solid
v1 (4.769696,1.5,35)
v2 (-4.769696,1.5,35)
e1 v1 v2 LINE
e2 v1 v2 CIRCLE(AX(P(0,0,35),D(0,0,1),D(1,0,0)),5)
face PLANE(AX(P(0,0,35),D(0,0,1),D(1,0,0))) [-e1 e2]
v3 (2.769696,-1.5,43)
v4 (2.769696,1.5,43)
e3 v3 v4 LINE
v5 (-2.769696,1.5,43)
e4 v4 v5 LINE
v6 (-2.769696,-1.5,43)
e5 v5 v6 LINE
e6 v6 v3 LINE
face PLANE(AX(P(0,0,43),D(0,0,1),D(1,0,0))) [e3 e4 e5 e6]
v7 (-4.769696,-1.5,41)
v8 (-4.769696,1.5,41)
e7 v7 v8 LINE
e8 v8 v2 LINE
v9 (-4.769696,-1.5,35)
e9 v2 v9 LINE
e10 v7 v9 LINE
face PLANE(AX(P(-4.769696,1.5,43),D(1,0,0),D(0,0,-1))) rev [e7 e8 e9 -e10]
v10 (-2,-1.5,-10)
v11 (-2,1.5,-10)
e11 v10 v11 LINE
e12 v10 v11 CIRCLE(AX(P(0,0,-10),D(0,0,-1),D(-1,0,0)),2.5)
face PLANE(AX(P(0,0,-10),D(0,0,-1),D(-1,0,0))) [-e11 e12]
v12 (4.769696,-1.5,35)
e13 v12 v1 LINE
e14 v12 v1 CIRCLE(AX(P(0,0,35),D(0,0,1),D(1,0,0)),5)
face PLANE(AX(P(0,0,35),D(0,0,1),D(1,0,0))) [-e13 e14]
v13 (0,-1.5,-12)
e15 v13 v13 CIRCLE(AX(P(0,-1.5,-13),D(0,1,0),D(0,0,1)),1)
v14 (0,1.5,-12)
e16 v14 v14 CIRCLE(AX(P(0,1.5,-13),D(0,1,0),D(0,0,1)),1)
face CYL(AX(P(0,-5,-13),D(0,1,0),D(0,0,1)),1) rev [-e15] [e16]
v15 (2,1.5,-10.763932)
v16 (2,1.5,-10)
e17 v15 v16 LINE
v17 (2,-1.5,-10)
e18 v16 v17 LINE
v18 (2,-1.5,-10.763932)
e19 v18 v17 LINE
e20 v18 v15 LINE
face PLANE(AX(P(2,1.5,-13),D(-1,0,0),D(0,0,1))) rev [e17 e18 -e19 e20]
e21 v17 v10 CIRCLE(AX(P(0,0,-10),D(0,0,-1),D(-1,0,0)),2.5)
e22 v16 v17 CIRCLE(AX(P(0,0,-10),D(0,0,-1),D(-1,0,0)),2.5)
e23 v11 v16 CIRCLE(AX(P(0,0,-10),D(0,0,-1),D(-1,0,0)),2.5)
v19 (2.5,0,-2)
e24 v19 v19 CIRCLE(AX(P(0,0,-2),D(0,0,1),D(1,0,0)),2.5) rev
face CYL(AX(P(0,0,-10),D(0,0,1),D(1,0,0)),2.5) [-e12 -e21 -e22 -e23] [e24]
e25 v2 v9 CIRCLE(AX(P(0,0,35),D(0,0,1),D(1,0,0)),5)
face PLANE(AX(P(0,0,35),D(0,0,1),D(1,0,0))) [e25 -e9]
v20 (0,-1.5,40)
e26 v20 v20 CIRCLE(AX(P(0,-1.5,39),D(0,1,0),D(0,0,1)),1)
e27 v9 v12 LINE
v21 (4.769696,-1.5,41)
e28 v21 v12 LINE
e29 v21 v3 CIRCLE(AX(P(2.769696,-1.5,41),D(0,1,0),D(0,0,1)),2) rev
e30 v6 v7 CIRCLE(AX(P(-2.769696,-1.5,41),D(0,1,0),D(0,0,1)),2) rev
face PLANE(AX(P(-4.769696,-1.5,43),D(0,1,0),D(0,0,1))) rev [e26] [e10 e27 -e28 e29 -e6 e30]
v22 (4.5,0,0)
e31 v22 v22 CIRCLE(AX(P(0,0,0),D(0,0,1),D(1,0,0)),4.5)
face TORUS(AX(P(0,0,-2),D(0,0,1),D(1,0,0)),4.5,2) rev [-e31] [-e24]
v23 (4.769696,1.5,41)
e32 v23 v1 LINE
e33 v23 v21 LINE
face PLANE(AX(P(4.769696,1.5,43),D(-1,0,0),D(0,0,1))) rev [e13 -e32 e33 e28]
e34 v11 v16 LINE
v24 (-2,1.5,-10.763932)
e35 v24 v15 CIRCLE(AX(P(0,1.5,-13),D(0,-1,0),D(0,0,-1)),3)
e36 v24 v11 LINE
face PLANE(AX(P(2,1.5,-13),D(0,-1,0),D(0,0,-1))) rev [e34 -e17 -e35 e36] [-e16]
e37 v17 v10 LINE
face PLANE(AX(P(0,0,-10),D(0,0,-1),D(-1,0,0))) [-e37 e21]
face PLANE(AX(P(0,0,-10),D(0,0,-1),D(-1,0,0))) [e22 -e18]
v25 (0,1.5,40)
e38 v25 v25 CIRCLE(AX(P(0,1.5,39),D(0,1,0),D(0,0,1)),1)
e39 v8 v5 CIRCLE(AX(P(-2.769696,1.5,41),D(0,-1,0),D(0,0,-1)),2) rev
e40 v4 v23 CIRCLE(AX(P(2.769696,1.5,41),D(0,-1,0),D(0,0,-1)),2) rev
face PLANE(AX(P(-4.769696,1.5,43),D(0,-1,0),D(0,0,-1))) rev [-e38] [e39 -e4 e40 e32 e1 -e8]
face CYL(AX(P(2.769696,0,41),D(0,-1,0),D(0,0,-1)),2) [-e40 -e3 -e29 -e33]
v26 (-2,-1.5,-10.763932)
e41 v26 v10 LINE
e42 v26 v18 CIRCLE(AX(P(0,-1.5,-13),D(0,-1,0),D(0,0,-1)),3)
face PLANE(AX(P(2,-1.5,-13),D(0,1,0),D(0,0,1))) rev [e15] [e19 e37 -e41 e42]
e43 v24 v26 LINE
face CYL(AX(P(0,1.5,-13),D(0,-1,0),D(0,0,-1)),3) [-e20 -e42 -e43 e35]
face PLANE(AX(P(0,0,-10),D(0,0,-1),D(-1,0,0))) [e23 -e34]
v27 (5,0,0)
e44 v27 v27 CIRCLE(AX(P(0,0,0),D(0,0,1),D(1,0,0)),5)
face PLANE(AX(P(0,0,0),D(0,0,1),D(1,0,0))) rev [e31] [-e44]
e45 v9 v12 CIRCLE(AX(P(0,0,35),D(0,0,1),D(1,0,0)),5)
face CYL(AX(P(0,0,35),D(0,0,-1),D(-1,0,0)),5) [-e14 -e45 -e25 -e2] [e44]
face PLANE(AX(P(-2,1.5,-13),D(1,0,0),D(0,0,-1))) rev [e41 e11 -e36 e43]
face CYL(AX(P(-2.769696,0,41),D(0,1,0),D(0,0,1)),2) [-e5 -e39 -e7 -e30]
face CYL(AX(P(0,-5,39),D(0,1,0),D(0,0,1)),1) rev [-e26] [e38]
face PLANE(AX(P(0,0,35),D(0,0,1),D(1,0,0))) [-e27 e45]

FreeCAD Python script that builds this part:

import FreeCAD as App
import Part
import Sketcher


def edges_at(feature, points):
    """Names of the edges that pass closest to the given points."""
    edges = feature.Shape.Edges
    near = lambda p: min(range(len(edges)), key=lambda i: edges[i].distToShape(Part.Vertex(*p))[0])
    return sorted({f"Edge{near(p) + 1}" for p in points})

doc = App.newDocument("Part")
params = doc.addObject("Spreadsheet::Sheet", "Params")
for row, (alias, value) in enumerate([
    ("sketch1_diameter", "10 mm"),
    ("pad1_length", "35 mm"),
    ("sketch2_height", "3 mm"),
    ("pad2_length", "8 mm"),
    ("sketch3_diameter", "5 mm"),
    ("pad3_length", "10 mm"),
    ("sketch4_width", "4 mm"),
    ("sketch4_height", "3 mm"),
    ("pad4_length", "3 mm"),
    ("sketch5_diameter", "6 mm"),
    ("pad5_length", "3 mm"),
    ("fillet_radius", "2 mm"),
    ("fillet2_radius", "2 mm"),
    ("sketch6_diameter", "2 mm"),
    ("sketch7_diameter", "2 mm"),
], start=1):
    params.set(f"A{row}", alias)
    params.set(f"B{row}", "=" + value)
    params.setAlias(f"B{row}", alias)

body = doc.addObject("PartDesign::Body", "Body")

sketch1 = body.newObject("Sketcher::SketchObject", "Sketch")
sketch1.AttachmentSupport = (doc.getObject("XY_Plane"), [""])
sketch1.MapMode = "FlatFace"
sketch1.addGeometry(Part.Circle(App.Vector(0, 0, 0), App.Vector(0, 0, 1), 5), False)
sketch1.addConstraint(Sketcher.Constraint("Coincident", 0, 3, -1, 1))
sketch1.addConstraint(Sketcher.Constraint("Diameter", 0, 10.0))
sketch1.setExpression("Constraints[1]", "Params.sketch1_diameter")
pad1 = body.newObject("PartDesign::Pad", "Pad")
pad1.Profile = sketch1
pad1.setExpression("Length", "Params.pad1_length")

sketch2 = body.newObject("Sketcher::SketchObject", "Sketch001")
sketch2.AttachmentSupport = (doc.getObject("XY_Plane"), [""])
sketch2.MapMode = "FlatFace"
sketch2.AttachmentOffset = App.Placement(App.Vector(0, 0, 35), App.Rotation())
sketch2.addGeometry(Part.LineSegment(App.Vector(-4.8, 1.5, 0), App.Vector(-4.8, -1.5, 0)), False)
sketch2.addGeometry(Part.LineSegment(App.Vector(-4.8, -1.5, 0), App.Vector(4.8, -1.5, 0)), False)
sketch2.addGeometry(Part.LineSegment(App.Vector(4.8, -1.5, 0), App.Vector(4.8, 1.5, 0)), False)
sketch2.addGeometry(Part.LineSegment(App.Vector(4.8, 1.5, 0), App.Vector(-4.8, 1.5, 0)), False)
sketch2.addConstraint(Sketcher.Constraint("Coincident", 0, 2, 1, 1))
sketch2.addConstraint(Sketcher.Constraint("Coincident", 1, 2, 2, 1))
sketch2.addConstraint(Sketcher.Constraint("Coincident", 2, 2, 3, 1))
sketch2.addConstraint(Sketcher.Constraint("Coincident", 3, 2, 0, 1))
sketch2.addConstraint(Sketcher.Constraint("Vertical", 0))
sketch2.addConstraint(Sketcher.Constraint("Horizontal", 1))
sketch2.addConstraint(Sketcher.Constraint("Vertical", 2))
sketch2.addConstraint(Sketcher.Constraint("Horizontal", 3))
sketch2.addConstraint(Sketcher.Constraint("Symmetric", 0, 2, 2, 2, -1, 1))
sketch2.addConstraint(Sketcher.Constraint("DistanceY", 0, 2, 0, 1, 3.0))
sketch2.addConstraint(Sketcher.Constraint("DistanceX", 1, 1, 1, 2, 9.539392))
sketch2.setExpression("Constraints[9]", "Params.sketch2_height")
pad2 = body.newObject("PartDesign::Pad", "Pad001")
pad2.Profile = sketch2
pad2.setExpression("Length", "Params.pad2_length")

sketch3 = body.newObject("Sketcher::SketchObject", "Sketch002")
sketch3.AttachmentSupport = (doc.getObject("XY_Plane"), [""])
sketch3.MapMode = "FlatFace"
sketch3.addGeometry(Part.Circle(App.Vector(0, 0, 0), App.Vector(0, 0, 1), 2.5), False)
sketch3.addConstraint(Sketcher.Constraint("Coincident", 0, 3, -1, 1))
sketch3.addConstraint(Sketcher.Constraint("Diameter", 0, 5.0))
sketch3.setExpression("Constraints[1]", "Params.sketch3_diameter")
pad3 = body.newObject("PartDesign::Pad", "Pad002")
pad3.Profile = sketch3
pad3.setExpression("Length", "Params.pad3_length")
pad3.Reversed = True

sketch4 = body.newObject("Sketcher::SketchObject", "Sketch003")
sketch4.AttachmentSupport = (doc.getObject("XY_Plane"), [""])
sketch4.MapMode = "FlatFace"
sketch4.AttachmentOffset = App.Placement(App.Vector(0, 0, -10), App.Rotation())
sketch4.addGeometry(Part.LineSegment(App.Vector(2, 1.5, 0), App.Vector(2, -1.5, 0)), False)
sketch4.addGeometry(Part.LineSegment(App.Vector(2, -1.5, 0), App.Vector(-2, -1.5, 0)), False)
sketch4.addGeometry(Part.LineSegment(App.Vector(-2, -1.5, 0), App.Vector(-2, 1.5, 0)), False)
sketch4.addGeometry(Part.LineSegment(App.Vector(-2, 1.5, 0), App.Vector(2, 1.5, 0)), False)
sketch4.addConstraint(Sketcher.Constraint("Coincident", 0, 2, 1, 1))
sketch4.addConstraint(Sketcher.Constraint("Coincident", 1, 2, 2, 1))
sketch4.addConstraint(Sketcher.Constraint("Coincident", 2, 2, 3, 1))
sketch4.addConstraint(Sketcher.Constraint("Coincident", 3, 2, 0, 1))
sketch4.addConstraint(Sketcher.Constraint("Vertical", 0))
sketch4.addConstraint(Sketcher.Constraint("Horizontal", 1))
sketch4.addConstraint(Sketcher.Constraint("Vertical", 2))
sketch4.addConstraint(Sketcher.Constraint("Horizontal", 3))
sketch4.addConstraint(Sketcher.Constraint("Symmetric", 0, 2, 2, 2, -1, 1))
sketch4.addConstraint(Sketcher.Constraint("DistanceX", 1, 2, 1, 1, 4.0))
sketch4.addConstraint(Sketcher.Constraint("DistanceY", 0, 2, 0, 1, 3.0))
sketch4.setExpression("Constraints[9]", "Params.sketch4_width")
sketch4.setExpression("Constraints[10]", "Params.sketch4_height")
pad4 = body.newObject("PartDesign::Pad", "Pad003")
pad4.Profile = sketch4
pad4.setExpression("Length", "Params.pad4_length")
pad4.Reversed = True

sketch5 = body.newObject("Sketcher::SketchObject", "Sketch004")
sketch5.AttachmentSupport = (doc.getObject("XZ_Plane"), [""])
sketch5.MapMode = "FlatFace"
sketch5.AttachmentOffset = App.Placement(App.Vector(0, 0, 1.5), App.Rotation())
sketch5.addGeometry(Part.Circle(App.Vector(0, -13, 0), App.Vector(0, 0, 1), 3), False)
sketch5.addConstraint(Sketcher.Constraint("PointOnObject", 0, 3, -2))
sketch5.addConstraint(Sketcher.Constraint("Diameter", 0, 6.0))
sketch5.addConstraint(Sketcher.Constraint("DistanceY", 0, 3, -1, 1, 13.0))
sketch5.setExpression("Constraints[1]", "Params.sketch5_diameter")
pad5 = body.newObject("PartDesign::Pad", "Pad004")
pad5.Profile = sketch5
pad5.setExpression("Length", "Params.pad5_length")
pad5.Reversed = True
doc.recompute()

fillet = body.newObject("PartDesign::Fillet", "Fillet")
fillet.Base = (pad5, edges_at(pad5, [(4.77, 0, 43), (-4.77, 0, 43)]))
fillet.setExpression("Radius", "Params.fillet_radius")
doc.recompute()

fillet2 = body.newObject("PartDesign::Fillet", "Fillet001")
fillet2.Base = (fillet, edges_at(fillet, [(2.5, 0, 0)]))
fillet2.setExpression("Radius", "Params.fillet2_radius")

sketch6 = body.newObject("Sketcher::SketchObject", "Sketch005")
sketch6.AttachmentSupport = (doc.getObject("XZ_Plane"), [""])
sketch6.MapMode = "FlatFace"
sketch6.AttachmentOffset = App.Placement(App.Vector(0, 0, -1.5), App.Rotation())
sketch6.addGeometry(Part.Circle(App.Vector(0, -13, 0), App.Vector(0, 0, 1), 1), False)
sketch6.addConstraint(Sketcher.Constraint("PointOnObject", 0, 3, -2))
sketch6.addConstraint(Sketcher.Constraint("Diameter", 0, 2.0))
sketch6.addConstraint(Sketcher.Constraint("DistanceY", 0, 3, -1, 1, 13.0))
sketch6.setExpression("Constraints[1]", "Params.sketch6_diameter")
pocket1 = body.newObject("PartDesign::Pocket", "Pocket")
pocket1.Profile = sketch6
pocket1.Type = "ThroughAll"
pocket1.Reversed = True

sketch7 = body.newObject("Sketcher::SketchObject", "Sketch006")
sketch7.AttachmentSupport = (doc.getObject("XZ_Plane"), [""])
sketch7.MapMode = "FlatFace"
sketch7.AttachmentOffset = App.Placement(App.Vector(0, 0, -1.5), App.Rotation())
sketch7.addGeometry(Part.Circle(App.Vector(0, 39, 0), App.Vector(0, 0, 1), 1), False)
sketch7.addConstraint(Sketcher.Constraint("PointOnObject", 0, 3, -2))
sketch7.addConstraint(Sketcher.Constraint("Diameter", 0, 2.0))
sketch7.addConstraint(Sketcher.Constraint("DistanceY", -1, 1, 0, 3, 39.0))
sketch7.setExpression("Constraints[1]", "Params.sketch7_diameter")
pocket2 = body.newObject("PartDesign::Pocket", "Pocket001")
pocket2.Profile = sketch7
pocket2.Type = "ThroughAll"
pocket2.Reversed = True

doc.recompute()
